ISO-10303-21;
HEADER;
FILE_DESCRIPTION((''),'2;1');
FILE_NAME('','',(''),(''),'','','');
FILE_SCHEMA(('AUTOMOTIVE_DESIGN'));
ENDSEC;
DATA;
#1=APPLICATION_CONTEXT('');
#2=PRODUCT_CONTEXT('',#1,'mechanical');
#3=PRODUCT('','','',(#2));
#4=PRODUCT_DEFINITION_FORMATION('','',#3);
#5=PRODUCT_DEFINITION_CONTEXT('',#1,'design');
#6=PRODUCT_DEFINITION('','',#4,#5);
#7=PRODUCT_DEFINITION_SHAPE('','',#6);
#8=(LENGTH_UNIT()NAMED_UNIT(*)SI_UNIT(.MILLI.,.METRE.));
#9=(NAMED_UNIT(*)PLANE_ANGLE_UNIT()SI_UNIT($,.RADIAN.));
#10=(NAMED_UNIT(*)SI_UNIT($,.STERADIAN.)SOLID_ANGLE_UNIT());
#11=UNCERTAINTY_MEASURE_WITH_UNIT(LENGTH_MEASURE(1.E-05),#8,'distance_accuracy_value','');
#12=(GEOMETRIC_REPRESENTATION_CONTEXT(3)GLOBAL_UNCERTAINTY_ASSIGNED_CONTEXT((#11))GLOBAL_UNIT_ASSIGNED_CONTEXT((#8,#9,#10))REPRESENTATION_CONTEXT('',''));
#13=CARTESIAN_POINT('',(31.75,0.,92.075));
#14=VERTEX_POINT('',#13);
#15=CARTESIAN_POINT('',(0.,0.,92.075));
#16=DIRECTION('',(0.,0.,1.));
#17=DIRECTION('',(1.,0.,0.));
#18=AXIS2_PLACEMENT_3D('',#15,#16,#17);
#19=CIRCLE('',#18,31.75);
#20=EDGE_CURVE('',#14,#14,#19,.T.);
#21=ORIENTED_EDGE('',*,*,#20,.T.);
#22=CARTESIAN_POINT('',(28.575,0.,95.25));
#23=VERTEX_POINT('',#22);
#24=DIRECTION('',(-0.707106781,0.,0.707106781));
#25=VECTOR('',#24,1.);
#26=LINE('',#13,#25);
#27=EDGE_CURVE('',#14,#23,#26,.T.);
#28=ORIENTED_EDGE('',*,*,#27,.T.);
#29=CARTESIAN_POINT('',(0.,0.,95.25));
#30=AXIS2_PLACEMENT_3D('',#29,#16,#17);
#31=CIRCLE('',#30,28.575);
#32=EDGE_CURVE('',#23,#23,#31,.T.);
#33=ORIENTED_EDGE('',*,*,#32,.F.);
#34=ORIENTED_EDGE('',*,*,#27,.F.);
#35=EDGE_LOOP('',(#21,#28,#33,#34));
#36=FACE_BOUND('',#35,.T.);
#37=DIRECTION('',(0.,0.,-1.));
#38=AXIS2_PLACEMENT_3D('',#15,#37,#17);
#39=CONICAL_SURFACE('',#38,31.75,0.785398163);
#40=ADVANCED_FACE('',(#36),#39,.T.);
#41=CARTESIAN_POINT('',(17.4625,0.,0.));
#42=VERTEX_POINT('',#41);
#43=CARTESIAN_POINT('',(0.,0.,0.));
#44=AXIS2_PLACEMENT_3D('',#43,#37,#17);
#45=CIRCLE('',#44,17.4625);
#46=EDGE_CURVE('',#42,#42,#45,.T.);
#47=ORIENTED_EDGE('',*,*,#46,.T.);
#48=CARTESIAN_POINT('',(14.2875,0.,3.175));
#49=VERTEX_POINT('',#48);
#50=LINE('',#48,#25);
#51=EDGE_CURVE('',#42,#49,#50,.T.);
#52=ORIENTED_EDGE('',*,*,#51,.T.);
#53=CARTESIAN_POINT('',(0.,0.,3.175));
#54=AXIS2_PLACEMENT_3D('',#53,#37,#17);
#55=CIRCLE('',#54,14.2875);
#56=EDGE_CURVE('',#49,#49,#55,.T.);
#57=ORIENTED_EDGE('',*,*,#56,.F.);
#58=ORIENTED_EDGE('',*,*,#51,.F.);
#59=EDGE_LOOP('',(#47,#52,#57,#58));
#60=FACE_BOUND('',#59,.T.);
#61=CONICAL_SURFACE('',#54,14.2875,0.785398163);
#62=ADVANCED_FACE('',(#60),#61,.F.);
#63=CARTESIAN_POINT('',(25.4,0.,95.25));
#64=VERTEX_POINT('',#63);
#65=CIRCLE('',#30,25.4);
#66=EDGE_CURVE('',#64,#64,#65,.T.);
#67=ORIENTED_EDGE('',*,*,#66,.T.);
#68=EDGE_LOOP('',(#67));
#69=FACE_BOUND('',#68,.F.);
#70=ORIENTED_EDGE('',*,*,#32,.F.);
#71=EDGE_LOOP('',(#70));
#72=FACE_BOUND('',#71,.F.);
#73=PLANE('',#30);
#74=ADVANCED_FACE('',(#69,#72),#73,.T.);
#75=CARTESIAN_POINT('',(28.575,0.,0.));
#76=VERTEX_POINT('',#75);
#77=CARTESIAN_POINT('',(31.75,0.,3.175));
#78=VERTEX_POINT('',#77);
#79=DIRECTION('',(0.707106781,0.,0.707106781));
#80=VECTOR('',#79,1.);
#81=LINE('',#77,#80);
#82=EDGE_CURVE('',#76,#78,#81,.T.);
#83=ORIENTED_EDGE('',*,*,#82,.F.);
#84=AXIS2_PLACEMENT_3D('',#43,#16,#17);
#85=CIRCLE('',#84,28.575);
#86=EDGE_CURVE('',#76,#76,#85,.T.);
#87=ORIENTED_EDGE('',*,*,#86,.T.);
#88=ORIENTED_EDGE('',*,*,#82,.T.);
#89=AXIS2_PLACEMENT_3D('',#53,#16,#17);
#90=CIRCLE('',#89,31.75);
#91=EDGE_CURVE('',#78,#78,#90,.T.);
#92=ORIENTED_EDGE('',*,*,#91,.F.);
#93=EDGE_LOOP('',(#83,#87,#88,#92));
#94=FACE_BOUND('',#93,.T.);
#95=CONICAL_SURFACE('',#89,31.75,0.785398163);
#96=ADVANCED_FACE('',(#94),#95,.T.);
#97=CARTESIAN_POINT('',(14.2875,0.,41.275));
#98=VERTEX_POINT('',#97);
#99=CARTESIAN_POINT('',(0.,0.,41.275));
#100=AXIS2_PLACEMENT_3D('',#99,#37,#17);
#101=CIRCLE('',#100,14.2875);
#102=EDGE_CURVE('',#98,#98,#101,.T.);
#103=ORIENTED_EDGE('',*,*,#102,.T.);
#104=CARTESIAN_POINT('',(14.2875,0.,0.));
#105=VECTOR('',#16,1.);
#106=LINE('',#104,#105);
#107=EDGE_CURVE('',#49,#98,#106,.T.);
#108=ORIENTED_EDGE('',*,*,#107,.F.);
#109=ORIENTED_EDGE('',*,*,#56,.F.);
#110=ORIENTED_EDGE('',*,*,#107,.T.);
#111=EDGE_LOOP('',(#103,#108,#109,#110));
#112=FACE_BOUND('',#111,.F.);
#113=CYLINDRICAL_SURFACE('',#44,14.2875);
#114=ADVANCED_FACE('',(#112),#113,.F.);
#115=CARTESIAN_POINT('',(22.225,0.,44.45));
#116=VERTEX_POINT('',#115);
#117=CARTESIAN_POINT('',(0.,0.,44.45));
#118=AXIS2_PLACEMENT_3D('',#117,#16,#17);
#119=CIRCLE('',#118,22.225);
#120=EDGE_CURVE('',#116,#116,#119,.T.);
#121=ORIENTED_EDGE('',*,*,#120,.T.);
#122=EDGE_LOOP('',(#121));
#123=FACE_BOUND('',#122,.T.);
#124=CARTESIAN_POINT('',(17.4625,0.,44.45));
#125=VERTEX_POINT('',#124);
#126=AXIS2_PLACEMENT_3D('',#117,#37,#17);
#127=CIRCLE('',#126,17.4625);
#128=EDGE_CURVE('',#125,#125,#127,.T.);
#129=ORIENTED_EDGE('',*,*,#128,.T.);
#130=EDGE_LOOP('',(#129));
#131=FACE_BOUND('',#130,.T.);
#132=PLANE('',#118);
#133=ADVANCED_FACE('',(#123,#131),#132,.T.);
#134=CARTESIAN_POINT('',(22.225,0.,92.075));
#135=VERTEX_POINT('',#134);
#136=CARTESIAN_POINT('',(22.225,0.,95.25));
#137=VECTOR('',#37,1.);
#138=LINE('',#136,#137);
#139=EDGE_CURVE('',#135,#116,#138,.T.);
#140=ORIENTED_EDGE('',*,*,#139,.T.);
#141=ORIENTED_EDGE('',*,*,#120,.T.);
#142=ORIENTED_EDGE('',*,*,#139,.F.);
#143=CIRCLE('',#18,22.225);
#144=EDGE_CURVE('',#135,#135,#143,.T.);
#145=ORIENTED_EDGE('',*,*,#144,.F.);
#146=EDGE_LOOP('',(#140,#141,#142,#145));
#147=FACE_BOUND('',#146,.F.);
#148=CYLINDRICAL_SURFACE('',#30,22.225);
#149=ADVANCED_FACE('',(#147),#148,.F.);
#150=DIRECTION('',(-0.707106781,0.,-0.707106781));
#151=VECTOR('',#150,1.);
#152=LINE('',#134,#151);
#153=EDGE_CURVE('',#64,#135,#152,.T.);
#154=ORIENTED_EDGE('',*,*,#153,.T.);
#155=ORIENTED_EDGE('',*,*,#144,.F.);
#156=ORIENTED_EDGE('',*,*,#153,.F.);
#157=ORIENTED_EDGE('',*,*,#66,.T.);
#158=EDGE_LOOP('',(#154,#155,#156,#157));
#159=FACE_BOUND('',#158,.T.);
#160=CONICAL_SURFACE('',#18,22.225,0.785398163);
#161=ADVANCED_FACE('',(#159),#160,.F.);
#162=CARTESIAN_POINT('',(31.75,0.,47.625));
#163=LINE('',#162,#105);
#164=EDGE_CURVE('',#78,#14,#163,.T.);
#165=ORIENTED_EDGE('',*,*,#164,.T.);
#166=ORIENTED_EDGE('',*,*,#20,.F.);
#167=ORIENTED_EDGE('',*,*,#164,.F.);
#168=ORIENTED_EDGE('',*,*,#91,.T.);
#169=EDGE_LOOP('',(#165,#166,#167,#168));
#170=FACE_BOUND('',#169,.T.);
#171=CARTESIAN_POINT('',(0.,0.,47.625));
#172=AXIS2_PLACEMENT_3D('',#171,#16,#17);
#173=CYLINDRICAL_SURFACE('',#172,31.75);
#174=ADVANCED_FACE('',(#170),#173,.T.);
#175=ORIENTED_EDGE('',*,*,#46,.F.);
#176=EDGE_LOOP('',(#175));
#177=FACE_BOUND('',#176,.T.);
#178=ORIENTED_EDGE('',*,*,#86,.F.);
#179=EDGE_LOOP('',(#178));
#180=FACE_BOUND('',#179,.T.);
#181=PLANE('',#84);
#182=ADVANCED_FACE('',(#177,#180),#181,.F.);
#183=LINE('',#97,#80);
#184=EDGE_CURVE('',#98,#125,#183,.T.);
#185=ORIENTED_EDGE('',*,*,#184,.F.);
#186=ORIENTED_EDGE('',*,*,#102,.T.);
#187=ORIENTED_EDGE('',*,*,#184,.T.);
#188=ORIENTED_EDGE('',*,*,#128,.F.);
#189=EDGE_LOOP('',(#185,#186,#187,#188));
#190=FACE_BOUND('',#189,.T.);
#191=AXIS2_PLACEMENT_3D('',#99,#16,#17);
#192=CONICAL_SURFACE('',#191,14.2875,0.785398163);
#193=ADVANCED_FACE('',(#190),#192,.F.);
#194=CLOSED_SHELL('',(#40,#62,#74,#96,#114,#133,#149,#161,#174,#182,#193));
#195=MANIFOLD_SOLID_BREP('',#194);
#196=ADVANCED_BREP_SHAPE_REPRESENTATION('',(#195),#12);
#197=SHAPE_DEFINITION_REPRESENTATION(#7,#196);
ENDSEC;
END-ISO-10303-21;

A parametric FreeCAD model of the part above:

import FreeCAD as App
import Part
import Sketcher

V = App.Vector
Q = App.Units.Quantity


def edges_at(feature, points):
    """Names of the edges that pass closest to the given points."""
    edges = feature.Shape.Edges
    near = lambda p: min(range(len(edges)), key=lambda i: edges[i].distToShape(Part.Vertex(*p))[0])
    return sorted({f"Edge{near(p) + 1}" for p in points})

doc = App.newDocument("Part")
body = doc.addObject("PartDesign::Body", "Body")

# Sketch on XZ plane
sketch1 = body.newObject("Sketcher::SketchObject", "Sketch")
sketch1.AttachmentSupport = (doc.getObject("XZ_Plane"), [""])
sketch1.MapMode = "FlatFace"
sketch1.addGeometry(Part.LineSegment(V(0, 95, 0), V(0, 0, 0)), False)
sketch1.addGeometry(Part.LineSegment(V(0, 0, 0), V(32, 0, 0)), False)
sketch1.addGeometry(Part.LineSegment(V(32, 0, 0), V(32, 95, 0)), False)
sketch1.addGeometry(Part.LineSegment(V(32, 95, 0), V(0, 95, 0)), False)
sketch1.addConstraint(Sketcher.Constraint("Coincident", 0, 2, 1, 1))
sketch1.addConstraint(Sketcher.Constraint("Coincident", 1, 2, 2, 1))
sketch1.addConstraint(Sketcher.Constraint("Coincident", 2, 2, 3, 1))
sketch1.addConstraint(Sketcher.Constraint("Coincident", 3, 2, 0, 1))
sketch1.addConstraint(Sketcher.Constraint("Vertical", 0))
sketch1.addConstraint(Sketcher.Constraint("Horizontal", 1))
sketch1.addConstraint(Sketcher.Constraint("Vertical", 2))
sketch1.addConstraint(Sketcher.Constraint("Horizontal", 3))
sketch1.addConstraint(Sketcher.Constraint("Coincident", 0, 2, -1, 1))
sketch1.addConstraint(Sketcher.Constraint("DistanceX", 1, 1, 1, 2, Q("1.25 in")))
sketch1.addConstraint(Sketcher.Constraint("DistanceY", 0, 2, 0, 1, Q("3.75 in")))
revolution = body.newObject("PartDesign::Revolution", "Revolution")
revolution.Profile = sketch1
revolution.ReferenceAxis = (sketch1, ["V_Axis"])
revolution.Angle = 360

# Sketch on XY plane
sketch2 = body.newObject("Sketcher::SketchObject", "Sketch001")
sketch2.AttachmentSupport = (doc.getObject("XY_Plane"), [""])
sketch2.MapMode = "FlatFace"
sketch2.AttachmentOffset = App.Placement(V(0, 0, 3.75 * 25.4), App.Rotation())
sketch2.addGeometry(Part.Circle(V(0, 0, 0), V(0, 0, 1), 22), False)
sketch2.addConstraint(Sketcher.Constraint("Coincident", 0, 3, -1, 1))
sketch2.addConstraint(Sketcher.Constraint("Diameter", 0, Q("1.75 in")))
pocket1 = body.newObject("PartDesign::Pocket", "Pocket")
pocket1.Profile = sketch2
pocket1.Length = Q("2 in")

# Sketch on XY plane
sketch3 = body.newObject("Sketcher::SketchObject", "Sketch002")
sketch3.AttachmentSupport = (doc.getObject("XY_Plane"), [""])
sketch3.MapMode = "FlatFace"
sketch3.addGeometry(Part.Circle(V(0, 0, 0), V(0, 0, 1), 14), False)
sketch3.addConstraint(Sketcher.Constraint("Coincident", 0, 3, -1, 1))
sketch3.addConstraint(Sketcher.Constraint("Diameter", 0, Q("1.125 in")))
pocket2 = body.newObject("PartDesign::Pocket", "Pocket001")
pocket2.Profile = sketch3
pocket2.Type = "ThroughAll"
pocket2.Reversed = True
doc.recompute()

chamfer = body.newObject("PartDesign::Chamfer", "Chamfer")
chamfer.Base = (pocket2, edges_at(pocket2, [
    (-31.75, 0, 0),
    (-31.75, 0, 95.25),
    (-22.225, 0, 95.25),
    (-14.287, 0, 44.45),
    (-14.287, 0, 0),
    (14.287, 0, 22.225),
]))
chamfer.Size = Q("0.125 in")

doc.recompute()
